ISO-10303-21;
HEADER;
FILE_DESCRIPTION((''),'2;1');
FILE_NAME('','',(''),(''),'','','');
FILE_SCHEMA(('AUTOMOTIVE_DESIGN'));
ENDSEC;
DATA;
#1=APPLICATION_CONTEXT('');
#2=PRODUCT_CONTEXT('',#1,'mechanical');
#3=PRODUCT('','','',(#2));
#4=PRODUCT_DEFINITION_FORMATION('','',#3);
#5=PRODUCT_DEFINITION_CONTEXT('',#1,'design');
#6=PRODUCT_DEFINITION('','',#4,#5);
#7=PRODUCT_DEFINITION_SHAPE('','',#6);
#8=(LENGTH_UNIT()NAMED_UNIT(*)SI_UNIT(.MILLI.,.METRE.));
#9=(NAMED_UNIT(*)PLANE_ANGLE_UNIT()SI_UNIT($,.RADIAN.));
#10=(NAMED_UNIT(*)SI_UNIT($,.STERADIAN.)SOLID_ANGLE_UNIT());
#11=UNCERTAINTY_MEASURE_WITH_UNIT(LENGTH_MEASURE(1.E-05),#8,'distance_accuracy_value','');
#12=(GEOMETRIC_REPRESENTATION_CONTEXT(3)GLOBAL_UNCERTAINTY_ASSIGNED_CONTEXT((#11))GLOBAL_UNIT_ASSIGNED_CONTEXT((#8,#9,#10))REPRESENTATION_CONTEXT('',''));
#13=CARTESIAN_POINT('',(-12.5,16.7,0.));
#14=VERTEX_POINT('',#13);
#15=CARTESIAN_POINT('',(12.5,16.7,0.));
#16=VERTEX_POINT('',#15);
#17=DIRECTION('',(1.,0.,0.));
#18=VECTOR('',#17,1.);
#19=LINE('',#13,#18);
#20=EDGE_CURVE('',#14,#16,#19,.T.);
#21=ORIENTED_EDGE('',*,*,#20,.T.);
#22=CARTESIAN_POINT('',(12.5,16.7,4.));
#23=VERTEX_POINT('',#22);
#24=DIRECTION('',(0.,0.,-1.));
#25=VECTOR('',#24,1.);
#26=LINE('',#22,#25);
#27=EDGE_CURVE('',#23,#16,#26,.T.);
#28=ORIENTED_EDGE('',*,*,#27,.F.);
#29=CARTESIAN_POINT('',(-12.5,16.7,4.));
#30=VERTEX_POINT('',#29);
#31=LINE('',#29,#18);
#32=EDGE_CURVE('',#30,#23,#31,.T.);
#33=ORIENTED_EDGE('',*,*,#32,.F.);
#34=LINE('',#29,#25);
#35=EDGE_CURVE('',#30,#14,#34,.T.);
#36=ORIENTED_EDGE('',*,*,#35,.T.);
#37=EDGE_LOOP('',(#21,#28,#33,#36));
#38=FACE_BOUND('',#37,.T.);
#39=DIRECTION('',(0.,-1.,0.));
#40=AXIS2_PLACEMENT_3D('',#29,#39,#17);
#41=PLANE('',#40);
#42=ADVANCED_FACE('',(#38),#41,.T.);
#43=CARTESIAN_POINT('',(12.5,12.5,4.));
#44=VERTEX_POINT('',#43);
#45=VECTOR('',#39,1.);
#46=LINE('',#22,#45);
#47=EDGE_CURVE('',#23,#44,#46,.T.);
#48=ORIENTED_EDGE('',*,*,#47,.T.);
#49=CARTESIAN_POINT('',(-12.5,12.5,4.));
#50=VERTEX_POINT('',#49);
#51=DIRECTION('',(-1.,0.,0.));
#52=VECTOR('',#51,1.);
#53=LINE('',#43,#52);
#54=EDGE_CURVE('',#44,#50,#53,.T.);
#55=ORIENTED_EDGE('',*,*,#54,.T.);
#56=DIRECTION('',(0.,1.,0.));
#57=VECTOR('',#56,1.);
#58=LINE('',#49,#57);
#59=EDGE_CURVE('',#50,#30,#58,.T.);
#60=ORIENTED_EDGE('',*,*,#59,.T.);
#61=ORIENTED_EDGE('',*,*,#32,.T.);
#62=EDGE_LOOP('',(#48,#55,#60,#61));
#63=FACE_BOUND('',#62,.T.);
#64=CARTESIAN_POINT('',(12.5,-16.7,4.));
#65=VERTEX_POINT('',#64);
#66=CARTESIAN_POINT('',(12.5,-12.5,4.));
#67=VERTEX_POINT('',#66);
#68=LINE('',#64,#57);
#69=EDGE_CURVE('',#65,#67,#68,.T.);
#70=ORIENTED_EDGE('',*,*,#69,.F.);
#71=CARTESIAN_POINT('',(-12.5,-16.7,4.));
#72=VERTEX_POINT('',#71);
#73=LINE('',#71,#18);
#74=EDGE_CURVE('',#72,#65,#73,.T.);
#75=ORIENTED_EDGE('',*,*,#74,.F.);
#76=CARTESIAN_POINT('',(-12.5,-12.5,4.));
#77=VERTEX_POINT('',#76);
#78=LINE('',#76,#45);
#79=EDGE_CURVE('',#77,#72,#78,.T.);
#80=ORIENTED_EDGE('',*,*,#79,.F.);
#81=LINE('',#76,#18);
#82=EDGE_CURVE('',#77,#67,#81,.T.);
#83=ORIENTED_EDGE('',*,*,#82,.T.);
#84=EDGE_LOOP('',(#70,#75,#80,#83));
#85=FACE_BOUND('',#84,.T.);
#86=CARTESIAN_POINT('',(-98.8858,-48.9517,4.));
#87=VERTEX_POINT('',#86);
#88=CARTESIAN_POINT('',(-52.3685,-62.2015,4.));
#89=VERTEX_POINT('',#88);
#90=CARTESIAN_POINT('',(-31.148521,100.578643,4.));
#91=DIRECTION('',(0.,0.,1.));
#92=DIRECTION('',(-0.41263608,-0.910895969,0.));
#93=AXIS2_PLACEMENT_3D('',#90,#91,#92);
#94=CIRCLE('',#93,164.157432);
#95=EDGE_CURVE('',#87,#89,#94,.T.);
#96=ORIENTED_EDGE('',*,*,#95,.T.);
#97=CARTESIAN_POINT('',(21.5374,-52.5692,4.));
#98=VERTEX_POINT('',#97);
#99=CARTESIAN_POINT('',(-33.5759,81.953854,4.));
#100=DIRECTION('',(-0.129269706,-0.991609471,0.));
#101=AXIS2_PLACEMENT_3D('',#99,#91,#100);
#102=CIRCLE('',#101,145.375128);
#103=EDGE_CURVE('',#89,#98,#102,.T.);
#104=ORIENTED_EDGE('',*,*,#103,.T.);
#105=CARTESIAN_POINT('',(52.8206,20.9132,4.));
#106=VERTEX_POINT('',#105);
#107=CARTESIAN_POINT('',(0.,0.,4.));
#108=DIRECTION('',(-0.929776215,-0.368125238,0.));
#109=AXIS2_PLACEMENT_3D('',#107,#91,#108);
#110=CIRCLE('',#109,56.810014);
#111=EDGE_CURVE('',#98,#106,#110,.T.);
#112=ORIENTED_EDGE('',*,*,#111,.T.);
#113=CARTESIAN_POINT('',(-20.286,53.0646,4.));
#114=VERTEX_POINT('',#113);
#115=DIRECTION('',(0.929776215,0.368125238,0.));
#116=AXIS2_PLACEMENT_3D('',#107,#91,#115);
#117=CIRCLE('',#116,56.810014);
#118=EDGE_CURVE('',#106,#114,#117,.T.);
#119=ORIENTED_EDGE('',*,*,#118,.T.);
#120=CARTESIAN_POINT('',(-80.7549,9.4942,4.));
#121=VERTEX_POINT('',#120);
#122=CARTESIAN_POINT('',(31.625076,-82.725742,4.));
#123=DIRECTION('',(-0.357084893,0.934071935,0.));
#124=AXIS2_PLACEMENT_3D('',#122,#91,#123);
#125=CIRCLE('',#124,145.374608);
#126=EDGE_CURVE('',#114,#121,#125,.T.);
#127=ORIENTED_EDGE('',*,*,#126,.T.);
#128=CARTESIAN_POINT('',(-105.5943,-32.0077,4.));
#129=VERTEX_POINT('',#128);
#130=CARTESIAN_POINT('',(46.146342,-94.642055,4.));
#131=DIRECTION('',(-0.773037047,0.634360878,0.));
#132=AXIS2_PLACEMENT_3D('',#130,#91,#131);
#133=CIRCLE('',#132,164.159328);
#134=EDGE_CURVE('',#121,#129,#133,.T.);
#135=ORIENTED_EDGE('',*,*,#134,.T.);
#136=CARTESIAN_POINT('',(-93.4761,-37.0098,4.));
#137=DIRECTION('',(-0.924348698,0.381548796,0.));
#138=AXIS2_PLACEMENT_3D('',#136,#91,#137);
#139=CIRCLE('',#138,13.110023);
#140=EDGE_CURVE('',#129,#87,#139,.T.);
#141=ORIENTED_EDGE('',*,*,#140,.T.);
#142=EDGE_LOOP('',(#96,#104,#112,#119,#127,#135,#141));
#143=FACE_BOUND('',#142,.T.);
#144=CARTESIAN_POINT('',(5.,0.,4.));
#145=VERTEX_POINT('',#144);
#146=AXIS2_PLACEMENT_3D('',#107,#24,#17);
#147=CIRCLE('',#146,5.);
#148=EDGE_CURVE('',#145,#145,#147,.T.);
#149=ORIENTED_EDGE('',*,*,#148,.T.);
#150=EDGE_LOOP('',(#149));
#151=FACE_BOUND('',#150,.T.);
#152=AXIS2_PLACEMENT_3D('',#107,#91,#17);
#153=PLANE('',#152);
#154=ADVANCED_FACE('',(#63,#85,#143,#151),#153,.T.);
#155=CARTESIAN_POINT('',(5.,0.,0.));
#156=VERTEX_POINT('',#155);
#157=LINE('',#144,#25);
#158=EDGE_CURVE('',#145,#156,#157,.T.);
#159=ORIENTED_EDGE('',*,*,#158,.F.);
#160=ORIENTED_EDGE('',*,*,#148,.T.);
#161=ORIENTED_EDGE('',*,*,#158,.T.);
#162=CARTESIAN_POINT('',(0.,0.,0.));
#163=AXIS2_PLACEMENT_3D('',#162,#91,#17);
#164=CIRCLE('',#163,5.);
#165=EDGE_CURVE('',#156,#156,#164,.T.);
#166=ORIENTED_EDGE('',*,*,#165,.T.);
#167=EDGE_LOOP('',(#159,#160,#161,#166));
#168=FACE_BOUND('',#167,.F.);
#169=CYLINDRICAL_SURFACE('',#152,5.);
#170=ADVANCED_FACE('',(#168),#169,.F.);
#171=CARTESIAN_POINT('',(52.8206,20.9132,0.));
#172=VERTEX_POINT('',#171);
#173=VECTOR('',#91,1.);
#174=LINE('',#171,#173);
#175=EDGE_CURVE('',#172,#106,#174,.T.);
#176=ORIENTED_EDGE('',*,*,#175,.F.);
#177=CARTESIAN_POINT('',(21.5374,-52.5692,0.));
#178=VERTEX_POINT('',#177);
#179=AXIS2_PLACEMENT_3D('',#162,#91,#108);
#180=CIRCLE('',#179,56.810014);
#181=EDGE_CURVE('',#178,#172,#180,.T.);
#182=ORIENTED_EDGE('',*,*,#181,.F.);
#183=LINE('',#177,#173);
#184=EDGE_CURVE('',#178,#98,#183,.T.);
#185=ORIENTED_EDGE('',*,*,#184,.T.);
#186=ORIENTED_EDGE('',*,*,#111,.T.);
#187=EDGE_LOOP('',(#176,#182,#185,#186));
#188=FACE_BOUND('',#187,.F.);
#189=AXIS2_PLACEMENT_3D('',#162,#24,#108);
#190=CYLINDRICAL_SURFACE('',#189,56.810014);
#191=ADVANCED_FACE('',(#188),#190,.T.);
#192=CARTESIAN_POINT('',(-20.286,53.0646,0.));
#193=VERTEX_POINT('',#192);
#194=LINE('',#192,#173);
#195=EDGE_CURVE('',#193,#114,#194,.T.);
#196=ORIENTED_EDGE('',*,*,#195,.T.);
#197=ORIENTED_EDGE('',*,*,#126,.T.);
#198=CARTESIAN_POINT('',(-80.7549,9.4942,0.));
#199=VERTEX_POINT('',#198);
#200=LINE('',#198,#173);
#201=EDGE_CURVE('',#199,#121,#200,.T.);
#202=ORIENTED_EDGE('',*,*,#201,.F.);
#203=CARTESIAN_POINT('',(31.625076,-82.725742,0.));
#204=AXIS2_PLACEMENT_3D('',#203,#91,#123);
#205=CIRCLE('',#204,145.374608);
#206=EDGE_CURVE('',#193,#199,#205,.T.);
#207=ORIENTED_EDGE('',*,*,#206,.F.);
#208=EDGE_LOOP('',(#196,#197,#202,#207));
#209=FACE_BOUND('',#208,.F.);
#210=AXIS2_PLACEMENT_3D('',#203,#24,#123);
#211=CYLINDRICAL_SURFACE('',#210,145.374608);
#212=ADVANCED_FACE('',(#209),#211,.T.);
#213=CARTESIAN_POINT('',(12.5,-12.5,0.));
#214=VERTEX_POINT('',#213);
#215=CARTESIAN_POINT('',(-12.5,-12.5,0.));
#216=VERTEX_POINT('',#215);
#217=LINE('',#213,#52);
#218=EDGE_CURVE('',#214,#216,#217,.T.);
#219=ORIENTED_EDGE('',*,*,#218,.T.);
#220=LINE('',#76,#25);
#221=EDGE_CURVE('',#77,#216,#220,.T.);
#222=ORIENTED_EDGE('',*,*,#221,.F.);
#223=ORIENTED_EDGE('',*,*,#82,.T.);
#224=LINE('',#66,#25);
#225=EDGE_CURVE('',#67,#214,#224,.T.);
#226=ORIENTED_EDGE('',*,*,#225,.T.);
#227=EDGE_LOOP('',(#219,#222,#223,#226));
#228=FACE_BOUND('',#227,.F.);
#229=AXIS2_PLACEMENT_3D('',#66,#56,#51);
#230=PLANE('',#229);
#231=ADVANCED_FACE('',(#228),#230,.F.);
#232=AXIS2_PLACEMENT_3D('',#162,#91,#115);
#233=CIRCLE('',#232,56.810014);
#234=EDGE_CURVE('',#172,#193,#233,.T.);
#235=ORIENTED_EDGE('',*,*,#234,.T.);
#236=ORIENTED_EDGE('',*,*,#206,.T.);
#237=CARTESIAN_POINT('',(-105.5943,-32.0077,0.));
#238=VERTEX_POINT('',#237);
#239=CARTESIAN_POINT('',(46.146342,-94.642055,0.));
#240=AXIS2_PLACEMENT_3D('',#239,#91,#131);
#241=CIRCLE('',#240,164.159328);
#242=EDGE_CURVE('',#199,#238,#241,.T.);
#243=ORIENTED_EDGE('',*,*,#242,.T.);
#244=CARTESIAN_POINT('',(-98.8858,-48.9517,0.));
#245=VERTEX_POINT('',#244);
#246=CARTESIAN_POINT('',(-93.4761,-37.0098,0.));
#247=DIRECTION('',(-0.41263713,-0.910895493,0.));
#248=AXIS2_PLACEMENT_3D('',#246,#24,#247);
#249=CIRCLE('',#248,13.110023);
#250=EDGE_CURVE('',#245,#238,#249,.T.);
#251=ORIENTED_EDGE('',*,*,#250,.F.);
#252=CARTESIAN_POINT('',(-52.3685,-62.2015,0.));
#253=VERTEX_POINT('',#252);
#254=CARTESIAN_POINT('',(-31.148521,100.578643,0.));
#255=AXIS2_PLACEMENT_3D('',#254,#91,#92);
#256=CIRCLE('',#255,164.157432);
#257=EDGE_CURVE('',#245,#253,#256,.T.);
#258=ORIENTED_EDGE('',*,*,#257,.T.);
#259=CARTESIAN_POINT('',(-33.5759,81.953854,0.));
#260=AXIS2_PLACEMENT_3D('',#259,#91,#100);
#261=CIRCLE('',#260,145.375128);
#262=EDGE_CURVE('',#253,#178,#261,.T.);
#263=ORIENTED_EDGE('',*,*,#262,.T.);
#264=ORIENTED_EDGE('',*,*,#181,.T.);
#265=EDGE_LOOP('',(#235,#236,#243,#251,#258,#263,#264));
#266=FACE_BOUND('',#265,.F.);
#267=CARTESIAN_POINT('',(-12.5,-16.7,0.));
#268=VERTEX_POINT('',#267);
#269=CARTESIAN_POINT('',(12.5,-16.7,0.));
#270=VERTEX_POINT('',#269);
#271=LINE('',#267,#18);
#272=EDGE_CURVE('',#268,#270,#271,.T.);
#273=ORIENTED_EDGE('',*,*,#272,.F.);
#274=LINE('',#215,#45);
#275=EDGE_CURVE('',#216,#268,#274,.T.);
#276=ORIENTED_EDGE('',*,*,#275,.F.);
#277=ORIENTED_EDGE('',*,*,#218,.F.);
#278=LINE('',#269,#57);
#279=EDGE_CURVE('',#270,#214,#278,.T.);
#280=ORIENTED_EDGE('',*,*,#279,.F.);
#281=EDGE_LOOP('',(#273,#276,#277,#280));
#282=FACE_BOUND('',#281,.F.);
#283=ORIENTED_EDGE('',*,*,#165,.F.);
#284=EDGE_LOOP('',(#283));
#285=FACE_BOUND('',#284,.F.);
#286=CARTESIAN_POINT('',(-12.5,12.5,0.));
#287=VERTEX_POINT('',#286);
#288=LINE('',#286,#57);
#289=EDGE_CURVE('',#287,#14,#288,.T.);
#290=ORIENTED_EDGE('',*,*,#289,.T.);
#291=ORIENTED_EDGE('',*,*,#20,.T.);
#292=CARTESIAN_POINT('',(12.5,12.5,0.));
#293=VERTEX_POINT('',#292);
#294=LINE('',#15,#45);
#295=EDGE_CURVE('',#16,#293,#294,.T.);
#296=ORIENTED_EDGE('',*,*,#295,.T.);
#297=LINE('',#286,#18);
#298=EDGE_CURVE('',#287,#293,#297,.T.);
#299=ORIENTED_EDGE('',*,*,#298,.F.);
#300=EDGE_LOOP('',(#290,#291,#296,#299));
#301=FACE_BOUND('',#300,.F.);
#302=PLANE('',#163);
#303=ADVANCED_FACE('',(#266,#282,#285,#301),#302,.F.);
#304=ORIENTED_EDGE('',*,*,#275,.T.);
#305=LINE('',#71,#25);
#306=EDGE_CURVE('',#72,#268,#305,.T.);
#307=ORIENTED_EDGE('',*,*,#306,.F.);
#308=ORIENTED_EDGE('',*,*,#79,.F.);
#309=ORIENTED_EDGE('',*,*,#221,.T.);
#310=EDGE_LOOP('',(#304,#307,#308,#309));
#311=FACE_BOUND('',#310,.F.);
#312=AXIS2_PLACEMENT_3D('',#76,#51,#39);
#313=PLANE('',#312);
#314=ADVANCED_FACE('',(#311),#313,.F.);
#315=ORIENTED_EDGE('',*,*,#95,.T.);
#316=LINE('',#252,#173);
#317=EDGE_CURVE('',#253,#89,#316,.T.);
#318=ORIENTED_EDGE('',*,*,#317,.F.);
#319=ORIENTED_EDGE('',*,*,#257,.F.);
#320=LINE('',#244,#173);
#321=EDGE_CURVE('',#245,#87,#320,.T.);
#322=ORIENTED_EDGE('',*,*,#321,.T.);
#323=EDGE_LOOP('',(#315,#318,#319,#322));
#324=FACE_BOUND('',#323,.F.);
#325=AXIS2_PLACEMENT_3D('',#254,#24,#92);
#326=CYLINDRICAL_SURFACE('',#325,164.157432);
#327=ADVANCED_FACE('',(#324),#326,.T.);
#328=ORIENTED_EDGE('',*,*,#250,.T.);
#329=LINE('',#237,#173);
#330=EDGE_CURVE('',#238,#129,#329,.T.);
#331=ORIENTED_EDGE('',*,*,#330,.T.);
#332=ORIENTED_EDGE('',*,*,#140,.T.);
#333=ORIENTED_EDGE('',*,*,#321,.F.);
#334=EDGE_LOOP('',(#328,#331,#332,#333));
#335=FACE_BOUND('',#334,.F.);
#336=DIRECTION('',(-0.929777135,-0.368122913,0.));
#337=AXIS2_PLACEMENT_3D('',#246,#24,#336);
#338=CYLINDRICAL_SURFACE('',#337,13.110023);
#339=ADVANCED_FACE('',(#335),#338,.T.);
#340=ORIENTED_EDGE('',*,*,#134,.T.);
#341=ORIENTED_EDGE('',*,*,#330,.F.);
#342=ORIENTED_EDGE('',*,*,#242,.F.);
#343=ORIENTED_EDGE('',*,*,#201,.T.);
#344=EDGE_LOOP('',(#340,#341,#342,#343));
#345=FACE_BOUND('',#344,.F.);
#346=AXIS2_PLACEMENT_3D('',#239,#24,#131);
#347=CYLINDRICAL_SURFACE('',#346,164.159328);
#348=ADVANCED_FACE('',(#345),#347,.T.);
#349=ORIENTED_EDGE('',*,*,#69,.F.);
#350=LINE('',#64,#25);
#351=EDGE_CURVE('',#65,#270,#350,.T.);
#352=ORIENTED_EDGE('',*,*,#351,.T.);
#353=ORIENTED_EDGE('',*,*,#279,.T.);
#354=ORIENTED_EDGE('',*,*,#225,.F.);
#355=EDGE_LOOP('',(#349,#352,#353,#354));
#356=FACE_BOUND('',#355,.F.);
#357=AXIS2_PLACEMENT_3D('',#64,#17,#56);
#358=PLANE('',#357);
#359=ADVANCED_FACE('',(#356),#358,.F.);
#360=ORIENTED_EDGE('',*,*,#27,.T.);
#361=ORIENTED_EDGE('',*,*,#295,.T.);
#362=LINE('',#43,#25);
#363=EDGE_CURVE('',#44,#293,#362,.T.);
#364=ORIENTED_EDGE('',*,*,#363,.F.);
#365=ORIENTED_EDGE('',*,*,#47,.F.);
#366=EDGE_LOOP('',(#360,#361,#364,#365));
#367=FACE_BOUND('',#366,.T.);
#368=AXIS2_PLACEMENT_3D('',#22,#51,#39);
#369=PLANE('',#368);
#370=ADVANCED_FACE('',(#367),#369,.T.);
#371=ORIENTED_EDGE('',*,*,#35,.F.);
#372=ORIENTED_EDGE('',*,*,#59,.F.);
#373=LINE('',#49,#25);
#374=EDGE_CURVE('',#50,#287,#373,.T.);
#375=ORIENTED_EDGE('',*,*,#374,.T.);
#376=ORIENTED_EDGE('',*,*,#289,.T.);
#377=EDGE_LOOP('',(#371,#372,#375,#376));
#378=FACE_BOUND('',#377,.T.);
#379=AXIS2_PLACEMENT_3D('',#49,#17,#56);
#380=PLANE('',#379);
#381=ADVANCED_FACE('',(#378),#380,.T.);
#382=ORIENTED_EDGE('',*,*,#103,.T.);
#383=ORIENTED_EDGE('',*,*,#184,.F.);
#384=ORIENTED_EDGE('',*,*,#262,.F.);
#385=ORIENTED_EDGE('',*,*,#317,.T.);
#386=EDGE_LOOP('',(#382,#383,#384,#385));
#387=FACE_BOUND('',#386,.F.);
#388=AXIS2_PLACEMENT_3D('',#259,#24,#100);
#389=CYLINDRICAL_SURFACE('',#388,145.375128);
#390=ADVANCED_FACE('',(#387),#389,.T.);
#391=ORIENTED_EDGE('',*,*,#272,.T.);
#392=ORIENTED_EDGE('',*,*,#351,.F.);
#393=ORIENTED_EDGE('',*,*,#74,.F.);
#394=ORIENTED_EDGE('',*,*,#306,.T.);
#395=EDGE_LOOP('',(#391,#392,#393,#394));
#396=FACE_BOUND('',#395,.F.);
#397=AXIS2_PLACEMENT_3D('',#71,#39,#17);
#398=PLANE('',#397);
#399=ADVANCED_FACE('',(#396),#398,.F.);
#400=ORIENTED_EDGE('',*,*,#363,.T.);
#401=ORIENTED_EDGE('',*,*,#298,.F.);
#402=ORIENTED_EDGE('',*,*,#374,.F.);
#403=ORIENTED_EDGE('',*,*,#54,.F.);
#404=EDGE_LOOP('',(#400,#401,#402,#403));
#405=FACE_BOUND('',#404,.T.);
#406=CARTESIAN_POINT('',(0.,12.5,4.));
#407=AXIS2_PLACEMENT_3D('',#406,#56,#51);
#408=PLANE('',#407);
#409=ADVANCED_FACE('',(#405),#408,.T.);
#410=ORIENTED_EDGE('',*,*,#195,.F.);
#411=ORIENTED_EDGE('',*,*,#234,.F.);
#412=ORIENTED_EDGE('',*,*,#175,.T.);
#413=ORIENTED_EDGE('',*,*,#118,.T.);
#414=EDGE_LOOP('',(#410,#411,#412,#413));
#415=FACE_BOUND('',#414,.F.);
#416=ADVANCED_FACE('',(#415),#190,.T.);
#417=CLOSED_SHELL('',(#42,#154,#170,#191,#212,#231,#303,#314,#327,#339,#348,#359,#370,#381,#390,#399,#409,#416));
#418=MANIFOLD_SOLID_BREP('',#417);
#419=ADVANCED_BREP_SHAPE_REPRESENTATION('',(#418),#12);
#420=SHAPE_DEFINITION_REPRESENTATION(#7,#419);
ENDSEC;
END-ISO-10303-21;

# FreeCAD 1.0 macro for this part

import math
import FreeCAD as App
import Part
import Sketcher
from FreeCAD import Vector
Q = App.Units.Quantity


def add_polygon(sketch, points):
    """Adds a closed chain of lines whose ends are joined by coincident constraints."""
    first, n = sketch.GeometryCount, len(points)
    for a, b in zip(points, points[1:] + points[:1]):
        sketch.addGeometry(Part.LineSegment(App.Vector(*a, 0), App.Vector(*b, 0)), False)
    for i in range(n):
        sketch.addConstraint(Sketcher.Constraint("Coincident", first + i, 2, first + (i + 1) % n, 1))

doc = App.newDocument("Part")
body = doc.addObject("PartDesign::Body", "Body")

sketch1 = body.newObject("Sketcher::SketchObject", "Sketch")
sketch1.AttachmentSupport = (doc.getObject("XY_Plane"), [""])
sketch1.MapMode = "FlatFace"
sketch1.addGeometry([
    Part.ArcOfCircle(Part.Circle(Vector(0, 0, 0), Vector(0, 0, 1), 56.810014), math.radians(-67.721275), math.radians(110.921293)),
    Part.ArcOfCircle(Part.Circle(Vector(31.625, -82.7256, 0), Vector(0, 0, 1), 145.374449), math.radians(110.921269), math.radians(140.627437)),
    Part.ArcOfCircle(Part.Circle(Vector(46.146342, -94.642055, 0), Vector(0, 0, 1), 164.159328), math.radians(140.627402), math.radians(157.570514)),
    Part.ArcOfCircle(Part.Circle(Vector(-93.4761, -37.0098, 0), Vector(0, 0, 1), 13.110023), math.radians(157.570348), math.radians(245.629397)),
    Part.ArcOfCircle(Part.Circle(Vector(-31.148521, 100.578643, 0), Vector(0, 0, 1), 164.157432), math.radians(-114.370537), math.radians(-97.427181)),
    Part.ArcOfCircle(Part.Circle(Vector(-33.5759, 81.9532, 0), Vector(0, 0, 1), 145.37448), math.radians(-97.427427), math.radians(-67.72128)),
], False)
sketch1.addConstraint([
    Sketcher.Constraint("Coincident", 0, 2, 1, 1),
    Sketcher.Constraint("Coincident", 1, 2, 2, 1),
    Sketcher.Constraint("Coincident", 2, 2, 3, 1),
    Sketcher.Constraint("Coincident", 3, 2, 4, 1),
    Sketcher.Constraint("Coincident", 4, 2, 5, 1),
    Sketcher.Constraint("Coincident", 5, 2, 0, 1),
    Sketcher.Constraint("Coincident", 0, 3, -1, 1),
    Sketcher.Constraint("Radius", 0, Q("56.81 mm")),
    Sketcher.Constraint("Radius", 3, Q("13.11 mm")),
    Sketcher.Constraint("Radius", 1, Q("145.3744 mm")),
    Sketcher.Constraint("Radius", 2, Q("164.1593 mm")),
    Sketcher.Constraint("Radius", 4, Q("164.1574 mm")),
    Sketcher.Constraint("Radius", 5, Q("145.3745 mm")),
    Sketcher.Constraint("DistanceX", 5, 3, 0, 2, Q("13.29 mm")),
    Sketcher.Constraint("DistanceX", 3, 3, 0, 2, Q("73.19 mm")),
    Sketcher.Constraint("DistanceX", -1, 1, 1, 3, Q("31.625 mm")),
    Sketcher.Constraint("DistanceY", 2, 3, -1, 1, Q("94.642 mm")),
    Sketcher.Constraint("DistanceX", 3, 3, -1, 1, Q("93.476 mm")),
    Sketcher.Constraint("DistanceX", 1, 2, -1, 1, Q("80.755 mm")),
    Sketcher.Constraint("DistanceY", 3, 3, 2, 2, Q("5.002 mm")),
    Sketcher.Constraint("DistanceY", 3, 2, 2, 2, Q("16.944 mm")),
    Sketcher.Constraint("DistanceX", 5, 2, 2, 3, Q("24.609 mm")),
    Sketcher.Constraint("DistanceX", 4, 2, 5, 2, Q("73.906 mm")),
])
pad1 = body.newObject("PartDesign::Pad", "Pad")
pad1.Profile = sketch1
pad1.Length = 4

sketch2 = body.newObject("Sketcher::SketchObject", "Sketch001")
sketch2.AttachmentSupport = (doc.getObject("XY_Plane"), [""])
sketch2.MapMode = "FlatFace"
sketch2.AttachmentOffset = App.Placement(Vector(0, 0, 4), App.Rotation())
sketch2.addGeometry(Part.Circle(Vector(0, 0, 0), Vector(0, 0, 1), 5), False)
add_polygon(sketch2, [(-12.5, 12.5), (12.5, 12.5), (12.5, 16.7), (-12.5, 16.7)])
add_polygon(sketch2, [(12.5, -12.5), (-12.5, -12.5), (-12.5, -16.7), (12.5, -16.7)])
sketch2.addConstraint([
    Sketcher.Constraint("Horizontal", 1),
    Sketcher.Constraint("Vertical", 2),
    Sketcher.Constraint("Horizontal", 3),
    Sketcher.Constraint("Vertical", 4),
    Sketcher.Constraint("Horizontal", 5),
    Sketcher.Constraint("Vertical", 6),
    Sketcher.Constraint("Horizontal", 7),
    Sketcher.Constraint("Vertical", 8),
    Sketcher.Constraint("Coincident", 0, 3, -1, 1),
    Sketcher.Constraint("Symmetric", 1, 2, 5, 2, -1, 1),
    Sketcher.Constraint("Symmetric", 3, 2, 7, 2, -1, 1),
    Sketcher.Constraint("Vertical", 4, 2, 5, 2),
    Sketcher.Constraint("Diameter", 0, Q("10 mm")),
    Sketcher.Constraint("DistanceX", 1, 1, 1, 2, Q("25 mm")),
    Sketcher.Constraint("DistanceY", 2, 1, 2, 2, Q("4.2 mm")),
    Sketcher.Constraint("DistanceY", 5, 2, 4, 2, Q("25 mm")),
])
pocket1 = body.newObject("PartDesign::Pocket", "Pocket")
pocket1.Profile = sketch2
pocket1.Length = 4

doc.recompute()
